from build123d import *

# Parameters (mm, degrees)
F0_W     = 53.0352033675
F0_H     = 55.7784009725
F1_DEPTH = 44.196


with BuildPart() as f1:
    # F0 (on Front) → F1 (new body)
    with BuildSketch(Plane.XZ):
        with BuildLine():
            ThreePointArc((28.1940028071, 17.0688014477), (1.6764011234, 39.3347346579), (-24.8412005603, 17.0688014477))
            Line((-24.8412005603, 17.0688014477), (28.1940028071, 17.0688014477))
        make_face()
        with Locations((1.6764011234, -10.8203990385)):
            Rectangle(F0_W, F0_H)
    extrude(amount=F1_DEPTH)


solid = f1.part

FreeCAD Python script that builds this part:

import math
import FreeCAD as App
import Part
import Sketcher
from FreeCAD import Vector
Q = App.Units.Quantity

doc = App.newDocument("Part")
body = doc.addObject("PartDesign::Body", "Body")

sketch1 = body.newObject("Sketcher::SketchObject", "Sketch")
sketch1.AttachmentSupport = (doc.getObject("XZ_Plane"), [""])
sketch1.MapMode = "FlatFace"
sketch1.addGeometry([
    Part.ArcOfCircle(Part.Circle(Vector(2, 12, 0), Vector(0, 0, 1), 27), math.radians(10), math.radians(170)),
    Part.LineSegment(Vector(-25, 17, 0), Vector(-25, -39, 0)),
    Part.LineSegment(Vector(-25, -39, 0), Vector(28, -39, 0)),
    Part.LineSegment(Vector(28, -39, 0), Vector(28, 17, 0)),
], False)
sketch1.addConstraint([
    Sketcher.Constraint("Coincident", 0, 2, 1, 1),
    Sketcher.Constraint("Coincident", 1, 2, 2, 1),
    Sketcher.Constraint("Coincident", 2, 2, 3, 1),
    Sketcher.Constraint("Coincident", 3, 2, 0, 1),
    Sketcher.Constraint("Vertical", 1),
    Sketcher.Constraint("Horizontal", 2),
    Sketcher.Constraint("Vertical", 3),
    Sketcher.Constraint("Horizontal", 0, 2, 3, 2),
    Sketcher.Constraint("DistanceX", 2, 1, 2, 2, Q("2.0880001 in")),
    Sketcher.Constraint("DistanceY", 1, 2, 1, 1, Q("2.196 in")),
    Sketcher.Constraint("DistanceX", -1, 1, 2, 2, Q("1.1100001 in")),
    Sketcher.Constraint("DistanceY", -1, 1, 0, 2, Q("0.6720001 in")),
    Sketcher.Constraint("Radius", 0, 26.923529),
])
pad1 = body.newObject("PartDesign::Pad", "Pad")
pad1.Profile = sketch1
pad1.Length = Q("1.74 in")

doc.recompute()
